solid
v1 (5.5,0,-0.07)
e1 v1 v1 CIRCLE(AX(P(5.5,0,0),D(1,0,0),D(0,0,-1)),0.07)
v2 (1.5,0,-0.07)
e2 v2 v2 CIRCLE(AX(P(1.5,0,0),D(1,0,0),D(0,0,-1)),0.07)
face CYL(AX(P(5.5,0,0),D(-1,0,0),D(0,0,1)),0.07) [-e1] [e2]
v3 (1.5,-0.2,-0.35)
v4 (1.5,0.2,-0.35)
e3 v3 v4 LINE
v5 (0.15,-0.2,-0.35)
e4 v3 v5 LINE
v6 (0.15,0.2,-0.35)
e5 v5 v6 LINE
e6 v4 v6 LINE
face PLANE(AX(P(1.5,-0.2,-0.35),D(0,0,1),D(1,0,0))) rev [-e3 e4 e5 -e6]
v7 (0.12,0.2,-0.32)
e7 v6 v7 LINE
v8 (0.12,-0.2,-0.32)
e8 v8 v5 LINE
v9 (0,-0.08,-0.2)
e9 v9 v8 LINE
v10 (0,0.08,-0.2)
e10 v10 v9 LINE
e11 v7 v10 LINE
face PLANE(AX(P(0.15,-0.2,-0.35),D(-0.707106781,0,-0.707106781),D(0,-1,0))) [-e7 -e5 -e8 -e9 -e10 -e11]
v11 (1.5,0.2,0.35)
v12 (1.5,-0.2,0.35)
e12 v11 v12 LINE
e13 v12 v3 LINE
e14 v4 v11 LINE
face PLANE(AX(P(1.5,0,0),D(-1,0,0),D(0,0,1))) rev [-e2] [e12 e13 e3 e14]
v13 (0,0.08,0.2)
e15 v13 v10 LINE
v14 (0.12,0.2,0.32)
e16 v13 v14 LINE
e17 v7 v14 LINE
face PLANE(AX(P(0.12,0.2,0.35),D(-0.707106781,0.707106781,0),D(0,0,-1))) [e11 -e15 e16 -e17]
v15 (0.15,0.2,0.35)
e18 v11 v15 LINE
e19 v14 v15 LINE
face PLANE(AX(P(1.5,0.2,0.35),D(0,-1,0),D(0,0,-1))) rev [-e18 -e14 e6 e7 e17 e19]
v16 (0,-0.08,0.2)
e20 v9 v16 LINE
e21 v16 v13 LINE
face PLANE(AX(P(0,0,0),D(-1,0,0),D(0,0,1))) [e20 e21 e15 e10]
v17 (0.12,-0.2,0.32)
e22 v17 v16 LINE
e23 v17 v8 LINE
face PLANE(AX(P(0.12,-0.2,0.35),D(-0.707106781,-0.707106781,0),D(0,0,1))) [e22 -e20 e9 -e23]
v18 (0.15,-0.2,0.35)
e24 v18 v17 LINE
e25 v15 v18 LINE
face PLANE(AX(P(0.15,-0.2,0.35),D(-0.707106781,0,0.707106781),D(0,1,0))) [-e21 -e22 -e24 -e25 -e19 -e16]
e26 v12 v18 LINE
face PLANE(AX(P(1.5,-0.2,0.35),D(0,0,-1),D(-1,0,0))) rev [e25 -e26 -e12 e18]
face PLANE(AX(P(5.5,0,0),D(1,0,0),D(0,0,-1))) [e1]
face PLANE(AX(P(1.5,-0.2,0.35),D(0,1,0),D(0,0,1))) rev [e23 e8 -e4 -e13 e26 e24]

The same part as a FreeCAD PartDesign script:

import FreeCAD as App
import Part
import Sketcher


def edges_at(feature, points):
    """Names of the edges that pass closest to the given points."""
    edges = feature.Shape.Edges
    near = lambda p: min(range(len(edges)), key=lambda i: edges[i].distToShape(Part.Vertex(*p))[0])
    return sorted({f"Edge{near(p) + 1}" for p in points})

doc = App.newDocument("Part")
body = doc.addObject("PartDesign::Body", "Body")

# Sketch on YZ plane
sketch1 = body.newObject("Sketcher::SketchObject", "Sketch")
sketch1.AttachmentSupport = (doc.getObject("YZ_Plane"), [""])
sketch1.MapMode = "FlatFace"
sketch1.addGeometry(Part.LineSegment(App.Vector(0.2, 0.35, 0), App.Vector(-0.2, 0.35, 0)), False)
sketch1.addGeometry(Part.LineSegment(App.Vector(-0.2, 0.35, 0), App.Vector(-0.2, -0.35, 0)), False)
sketch1.addGeometry(Part.LineSegment(App.Vector(-0.2, -0.35, 0), App.Vector(0.2, -0.35, 0)), False)
sketch1.addGeometry(Part.LineSegment(App.Vector(0.2, -0.35, 0), App.Vector(0.2, 0.35, 0)), False)
sketch1.addConstraint(Sketcher.Constraint("Coincident", 0, 2, 1, 1))
sketch1.addConstraint(Sketcher.Constraint("Coincident", 1, 2, 2, 1))
sketch1.addConstraint(Sketcher.Constraint("Coincident", 2, 2, 3, 1))
sketch1.addConstraint(Sketcher.Constraint("Coincident", 3, 2, 0, 1))
sketch1.addConstraint(Sketcher.Constraint("Horizontal", 0))
sketch1.addConstraint(Sketcher.Constraint("Vertical", 1))
sketch1.addConstraint(Sketcher.Constraint("Horizontal", 2))
sketch1.addConstraint(Sketcher.Constraint("Vertical", 3))
sketch1.addConstraint(Sketcher.Constraint("Symmetric", 0, 2, 2, 2, -1, 1))
sketch1.addConstraint(Sketcher.Constraint("DistanceX", 0, 2, 0, 1, 0.4))
sketch1.addConstraint(Sketcher.Constraint("DistanceY", 1, 2, 1, 1, 0.7))
pad1 = body.newObject("PartDesign::Pad", "Pad")
pad1.Profile = sketch1
pad1.Length = 1.5

# Sketch on YZ plane
sketch2 = body.newObject("Sketcher::SketchObject", "Sketch001")
sketch2.AttachmentSupport = (doc.getObject("YZ_Plane"), [""])
sketch2.MapMode = "FlatFace"
sketch2.AttachmentOffset = App.Placement(App.Vector(0, 0, 1.5), App.Rotation())
sketch2.addGeometry(Part.Circle(App.Vector(0, 0, 0), App.Vector(0, 0, 1), 0.07), False)
sketch2.addConstraint(Sketcher.Constraint("Coincident", 0, 3, -1, 1))
sketch2.addConstraint(Sketcher.Constraint("Diameter", 0, 0.14))
pad2 = body.newObject("PartDesign::Pad", "Pad001")
pad2.Profile = sketch2
pad2.Length = 4
doc.recompute()

chamfer = body.newObject("PartDesign::Chamfer", "Chamfer")
chamfer.Base = (pad2, edges_at(pad2, [(0, -0.2, 0), (0, 0.2, 0)]))
chamfer.Size = 0.12
doc.recompute()

chamfer2 = body.newObject("PartDesign::Chamfer", "Chamfer001")
chamfer2.Base = (chamfer, edges_at(chamfer, [(0, 0, 0.35), (0, 0, -0.35)]))
chamfer2.Size = 0.15

doc.recompute()
